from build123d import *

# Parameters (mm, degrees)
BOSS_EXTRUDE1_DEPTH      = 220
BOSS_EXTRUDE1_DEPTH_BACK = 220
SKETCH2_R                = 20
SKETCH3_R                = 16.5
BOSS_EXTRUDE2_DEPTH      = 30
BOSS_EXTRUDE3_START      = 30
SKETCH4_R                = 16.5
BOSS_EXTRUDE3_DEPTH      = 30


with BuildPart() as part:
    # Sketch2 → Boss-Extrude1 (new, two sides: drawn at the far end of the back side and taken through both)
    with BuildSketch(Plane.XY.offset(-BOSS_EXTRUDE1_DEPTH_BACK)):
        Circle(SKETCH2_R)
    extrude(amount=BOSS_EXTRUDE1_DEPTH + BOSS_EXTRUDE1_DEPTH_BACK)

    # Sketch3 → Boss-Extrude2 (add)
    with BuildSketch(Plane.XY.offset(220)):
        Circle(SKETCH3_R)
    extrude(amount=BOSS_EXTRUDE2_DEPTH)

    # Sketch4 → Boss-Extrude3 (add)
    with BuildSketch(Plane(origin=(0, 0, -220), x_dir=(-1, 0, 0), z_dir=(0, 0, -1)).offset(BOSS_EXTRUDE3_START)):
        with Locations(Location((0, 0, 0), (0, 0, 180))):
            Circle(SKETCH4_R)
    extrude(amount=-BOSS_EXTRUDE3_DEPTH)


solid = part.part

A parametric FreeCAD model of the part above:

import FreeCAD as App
import Part
import Sketcher
from FreeCAD import Vector
Q = App.Units.Quantity

doc = App.newDocument("Part")
body = doc.addObject("PartDesign::Body", "Body")

sketch1 = body.newObject("Sketcher::SketchObject", "Sketch")
sketch1.AttachmentSupport = (doc.getObject("XY_Plane"), [""])
sketch1.MapMode = "FlatFace"
sketch1.addGeometry(Part.Circle(Vector(0, 0, 0), Vector(0, 0, 1), 20), False)
sketch1.addConstraint(Sketcher.Constraint("Coincident", 0, 3, -1, 1))
sketch1.addConstraint(Sketcher.Constraint("Diameter", 0, Q("40 mm")))
pad1 = body.newObject("PartDesign::Pad", "Pad")
pad1.Profile = sketch1
pad1.Type = "TwoLengths"
pad1.Length = 220
pad1.Length2 = 220

sketch2 = body.newObject("Sketcher::SketchObject", "Sketch001")
sketch2.AttachmentSupport = (doc.getObject("XY_Plane"), [""])
sketch2.MapMode = "FlatFace"
sketch2.AttachmentOffset = App.Placement(Vector(0, 0, 220), App.Rotation())
sketch2.addGeometry(Part.Circle(Vector(0, 0, 0), Vector(0, 0, 1), 16), False)
sketch2.addConstraint(Sketcher.Constraint("Coincident", 0, 3, -1, 1))
sketch2.addConstraint(Sketcher.Constraint("Diameter", 0, Q("33 mm")))
pad2 = body.newObject("PartDesign::Pad", "Pad001")
pad2.Profile = sketch2
pad2.Length = 30

sketch3 = body.newObject("Sketcher::SketchObject", "Sketch002")
sketch3.AttachmentSupport = (doc.getObject("XY_Plane"), [""])
sketch3.MapMode = "FlatFace"
sketch3.AttachmentOffset = App.Placement(Vector(0, 0, -250), App.Rotation())
sketch3.addGeometry(Part.Circle(Vector(0, 0, 0), Vector(0, 0, 1), 16), False)
sketch3.addConstraint(Sketcher.Constraint("Coincident", 0, 3, -1, 1))
sketch3.addConstraint(Sketcher.Constraint("Diameter", 0, Q("33 mm")))
pad3 = body.newObject("PartDesign::Pad", "Pad002")
pad3.Profile = sketch3
pad3.Length = 30

doc.recompute()
